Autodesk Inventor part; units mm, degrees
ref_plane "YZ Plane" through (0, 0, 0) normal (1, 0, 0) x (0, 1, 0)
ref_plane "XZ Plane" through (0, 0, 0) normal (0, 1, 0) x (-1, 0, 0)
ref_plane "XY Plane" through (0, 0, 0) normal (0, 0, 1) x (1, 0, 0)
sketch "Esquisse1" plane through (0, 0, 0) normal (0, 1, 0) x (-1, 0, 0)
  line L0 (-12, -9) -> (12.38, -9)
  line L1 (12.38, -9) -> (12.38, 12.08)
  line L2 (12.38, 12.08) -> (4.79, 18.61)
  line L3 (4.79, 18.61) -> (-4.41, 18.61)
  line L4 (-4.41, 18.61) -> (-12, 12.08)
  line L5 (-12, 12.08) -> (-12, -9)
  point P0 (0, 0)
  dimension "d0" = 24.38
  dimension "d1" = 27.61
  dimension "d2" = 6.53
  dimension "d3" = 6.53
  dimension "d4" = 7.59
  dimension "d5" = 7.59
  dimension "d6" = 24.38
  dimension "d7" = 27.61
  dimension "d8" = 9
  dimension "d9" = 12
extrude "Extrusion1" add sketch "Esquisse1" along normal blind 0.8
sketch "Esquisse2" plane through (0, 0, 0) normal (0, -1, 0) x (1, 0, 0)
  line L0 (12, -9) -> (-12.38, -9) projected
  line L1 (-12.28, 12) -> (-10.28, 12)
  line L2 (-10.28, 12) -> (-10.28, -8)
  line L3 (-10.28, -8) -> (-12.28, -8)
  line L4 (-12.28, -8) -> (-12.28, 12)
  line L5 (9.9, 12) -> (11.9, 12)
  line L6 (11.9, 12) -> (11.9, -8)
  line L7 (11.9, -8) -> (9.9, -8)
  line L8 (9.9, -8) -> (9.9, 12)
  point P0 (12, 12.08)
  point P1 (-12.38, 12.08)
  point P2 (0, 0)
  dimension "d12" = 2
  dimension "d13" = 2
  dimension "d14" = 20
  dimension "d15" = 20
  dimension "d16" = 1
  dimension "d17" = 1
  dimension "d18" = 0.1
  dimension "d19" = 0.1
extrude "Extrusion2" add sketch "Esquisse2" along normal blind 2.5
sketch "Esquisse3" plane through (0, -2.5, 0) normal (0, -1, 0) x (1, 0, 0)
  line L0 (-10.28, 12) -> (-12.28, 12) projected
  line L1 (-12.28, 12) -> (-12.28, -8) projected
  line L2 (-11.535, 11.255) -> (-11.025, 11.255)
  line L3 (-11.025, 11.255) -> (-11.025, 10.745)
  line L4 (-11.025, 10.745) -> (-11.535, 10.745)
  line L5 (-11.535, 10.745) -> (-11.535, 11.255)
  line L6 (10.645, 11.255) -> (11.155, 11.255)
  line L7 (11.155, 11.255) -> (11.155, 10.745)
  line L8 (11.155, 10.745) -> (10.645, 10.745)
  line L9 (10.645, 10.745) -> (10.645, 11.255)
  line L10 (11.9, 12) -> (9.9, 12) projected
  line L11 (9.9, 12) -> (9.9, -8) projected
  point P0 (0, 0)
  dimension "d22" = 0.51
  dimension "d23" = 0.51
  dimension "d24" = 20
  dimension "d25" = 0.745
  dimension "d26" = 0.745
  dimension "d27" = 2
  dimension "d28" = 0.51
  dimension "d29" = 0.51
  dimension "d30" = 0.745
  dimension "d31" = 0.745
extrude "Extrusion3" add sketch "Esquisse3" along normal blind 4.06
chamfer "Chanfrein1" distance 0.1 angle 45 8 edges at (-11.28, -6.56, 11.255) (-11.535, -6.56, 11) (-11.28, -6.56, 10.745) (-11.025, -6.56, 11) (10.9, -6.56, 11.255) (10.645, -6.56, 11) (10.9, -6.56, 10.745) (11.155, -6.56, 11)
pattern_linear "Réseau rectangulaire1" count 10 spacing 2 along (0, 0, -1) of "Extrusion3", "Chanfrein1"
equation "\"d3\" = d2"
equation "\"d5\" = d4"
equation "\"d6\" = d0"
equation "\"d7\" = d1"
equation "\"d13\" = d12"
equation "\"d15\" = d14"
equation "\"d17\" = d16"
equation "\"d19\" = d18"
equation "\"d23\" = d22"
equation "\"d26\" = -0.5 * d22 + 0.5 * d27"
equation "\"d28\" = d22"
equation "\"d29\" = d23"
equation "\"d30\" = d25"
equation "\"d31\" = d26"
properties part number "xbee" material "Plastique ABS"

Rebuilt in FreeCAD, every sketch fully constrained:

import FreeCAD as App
import Part
import Sketcher


def edges_at(feature, points):
    """Names of the edges that pass closest to the given points."""
    edges = feature.Shape.Edges
    near = lambda p: min(range(len(edges)), key=lambda i: edges[i].distToShape(Part.Vertex(*p))[0])
    return sorted({f"Edge{near(p) + 1}" for p in points})

doc = App.newDocument("Part")
body = doc.addObject("PartDesign::Body", "Body")

# Sketch on XZ plane
sketch1 = body.newObject("Sketcher::SketchObject", "Sketch")
sketch1.AttachmentSupport = (doc.getObject("XZ_Plane"), [""])
sketch1.MapMode = "FlatFace"
sketch1.addGeometry(Part.LineSegment(App.Vector(12, 12, 0), App.Vector(12, -9, 0)), False)
sketch1.addGeometry(Part.LineSegment(App.Vector(12, -9, 0), App.Vector(-12, -9, 0)), False)
sketch1.addGeometry(Part.LineSegment(App.Vector(-12, -9, 0), App.Vector(-12, 12, 0)), False)
sketch1.addGeometry(Part.LineSegment(App.Vector(-12, 12, 0), App.Vector(-5, 19, 0)), False)
sketch1.addGeometry(Part.LineSegment(App.Vector(-5, 19, 0), App.Vector(4, 19, 0)), False)
sketch1.addGeometry(Part.LineSegment(App.Vector(4, 19, 0), App.Vector(12, 12, 0)), False)
sketch1.addConstraint(Sketcher.Constraint("Coincident", 0, 2, 1, 1))
sketch1.addConstraint(Sketcher.Constraint("Coincident", 1, 2, 2, 1))
sketch1.addConstraint(Sketcher.Constraint("Coincident", 2, 2, 3, 1))
sketch1.addConstraint(Sketcher.Constraint("Coincident", 3, 2, 4, 1))
sketch1.addConstraint(Sketcher.Constraint("Coincident", 4, 2, 5, 1))
sketch1.addConstraint(Sketcher.Constraint("Coincident", 5, 2, 0, 1))
sketch1.addConstraint(Sketcher.Constraint("Vertical", 0))
sketch1.addConstraint(Sketcher.Constraint("Horizontal", 1))
sketch1.addConstraint(Sketcher.Constraint("Vertical", 2))
sketch1.addConstraint(Sketcher.Constraint("Horizontal", 4))
sketch1.addConstraint(Sketcher.Constraint("Horizontal", 2, 2, 5, 2))
sketch1.addConstraint(Sketcher.Constraint("Equal", 3, 5))
sketch1.addConstraint(Sketcher.Constraint("DistanceX", -1, 1, 0, 2, 12.0))
sketch1.addConstraint(Sketcher.Constraint("DistanceY", 0, 2, -1, 1, 9.0))
sketch1.addConstraint(Sketcher.Constraint("DistanceX", 1, 2, 1, 1, 24.38))
sketch1.addConstraint(Sketcher.Constraint("DistanceX", 2, 2, 3, 2, 7.59))
sketch1.addConstraint(Sketcher.Constraint("DistanceY", 2, 2, 3, 2, 6.53))
sketch1.addConstraint(Sketcher.Constraint("DistanceY", 1, 2, 3, 2, 27.61))
pad1 = body.newObject("PartDesign::Pad", "Pad")
pad1.Profile = sketch1
pad1.Length = 0.8
pad1.Reversed = True

# Sketch on XZ plane
sketch2 = body.newObject("Sketcher::SketchObject", "Sketch001")
sketch2.AttachmentSupport = (doc.getObject("XZ_Plane"), [""])
sketch2.MapMode = "FlatFace"
sketch2.addGeometry(Part.LineSegment(App.Vector(-10.3, 12, 0), App.Vector(-12.3, 12, 0)), False)
sketch2.addGeometry(Part.LineSegment(App.Vector(-12.3, 12, 0), App.Vector(-12.3, -8, 0)), False)
sketch2.addGeometry(Part.LineSegment(App.Vector(-12.3, -8, 0), App.Vector(-10.3, -8, 0)), False)
sketch2.addGeometry(Part.LineSegment(App.Vector(-10.3, -8, 0), App.Vector(-10.3, 12, 0)), False)
sketch2.addGeometry(Part.LineSegment(App.Vector(11.9, 12, 0), App.Vector(9.9, 12, 0)), False)
sketch2.addGeometry(Part.LineSegment(App.Vector(9.9, 12, 0), App.Vector(9.9, -8, 0)), False)
sketch2.addGeometry(Part.LineSegment(App.Vector(9.9, -8, 0), App.Vector(11.9, -8, 0)), False)
sketch2.addGeometry(Part.LineSegment(App.Vector(11.9, -8, 0), App.Vector(11.9, 12, 0)), False)
sketch2.addConstraint(Sketcher.Constraint("Coincident", 0, 2, 1, 1))
sketch2.addConstraint(Sketcher.Constraint("Coincident", 1, 2, 2, 1))
sketch2.addConstraint(Sketcher.Constraint("Coincident", 2, 2, 3, 1))
sketch2.addConstraint(Sketcher.Constraint("Coincident", 3, 2, 0, 1))
sketch2.addConstraint(Sketcher.Constraint("Coincident", 4, 2, 5, 1))
sketch2.addConstraint(Sketcher.Constraint("Coincident", 5, 2, 6, 1))
sketch2.addConstraint(Sketcher.Constraint("Coincident", 6, 2, 7, 1))
sketch2.addConstraint(Sketcher.Constraint("Coincident", 7, 2, 4, 1))
sketch2.addConstraint(Sketcher.Constraint("Horizontal", 0))
sketch2.addConstraint(Sketcher.Constraint("Vertical", 1))
sketch2.addConstraint(Sketcher.Constraint("Horizontal", 2))
sketch2.addConstraint(Sketcher.Constraint("Vertical", 3))
sketch2.addConstraint(Sketcher.Constraint("Horizontal", 4))
sketch2.addConstraint(Sketcher.Constraint("Vertical", 5))
sketch2.addConstraint(Sketcher.Constraint("Horizontal", 6))
sketch2.addConstraint(Sketcher.Constraint("Vertical", 7))
sketch2.addConstraint(Sketcher.Constraint("Horizontal", 3, 2, 4, 2))
sketch2.addConstraint(Sketcher.Constraint("Horizontal", 2, 2, 5, 2))
sketch2.addConstraint(Sketcher.Constraint("Equal", 2, 4))
sketch2.addConstraint(Sketcher.Constraint("DistanceX", 0, 2, 0, 1, 2.0))
sketch2.addConstraint(Sketcher.Constraint("DistanceY", 1, 2, 1, 1, 20.0))
sketch2.addConstraint(Sketcher.Constraint("DistanceY", -1, 1, 0, 2, 12.0))
sketch2.addConstraint(Sketcher.Constraint("DistanceX", -1, 1, 4, 2, 9.9))
sketch2.addConstraint(Sketcher.Constraint("DistanceX", 0, 2, -1, 1, 12.28))
pad2 = body.newObject("PartDesign::Pad", "Pad001")
pad2.Profile = sketch2
pad2.Length = 2.5

# Sketch on XZ plane
sketch3 = body.newObject("Sketcher::SketchObject", "Sketch002")
sketch3.AttachmentSupport = (doc.getObject("XZ_Plane"), [""])
sketch3.MapMode = "FlatFace"
sketch3.AttachmentOffset = App.Placement(App.Vector(0, 0, 2.5), App.Rotation())
sketch3.addGeometry(Part.LineSegment(App.Vector(-11, 11.3, 0), App.Vector(-11.5, 11.3, 0)), False)
sketch3.addGeometry(Part.LineSegment(App.Vector(-11.5, 11.3, 0), App.Vector(-11.5, 10.7, 0)), False)
sketch3.addGeometry(Part.LineSegment(App.Vector(-11.5, 10.7, 0), App.Vector(-11, 10.7, 0)), False)
sketch3.addGeometry(Part.LineSegment(App.Vector(-11, 10.7, 0), App.Vector(-11, 11.3, 0)), False)
sketch3.addGeometry(Part.LineSegment(App.Vector(11.2, 11.3, 0), App.Vector(10.6, 11.3, 0)), False)
sketch3.addGeometry(Part.LineSegment(App.Vector(10.6, 11.3, 0), App.Vector(10.6, 10.7, 0)), False)
sketch3.addGeometry(Part.LineSegment(App.Vector(10.6, 10.7, 0), App.Vector(11.2, 10.7, 0)), False)
sketch3.addGeometry(Part.LineSegment(App.Vector(11.2, 10.7, 0), App.Vector(11.2, 11.3, 0)), False)
sketch3.addConstraint(Sketcher.Constraint("Coincident", 0, 2, 1, 1))
sketch3.addConstraint(Sketcher.Constraint("Coincident", 1, 2, 2, 1))
sketch3.addConstraint(Sketcher.Constraint("Coincident", 2, 2, 3, 1))
sketch3.addConstraint(Sketcher.Constraint("Coincident", 3, 2, 0, 1))
sketch3.addConstraint(Sketcher.Constraint("Coincident", 4, 2, 5, 1))
sketch3.addConstraint(Sketcher.Constraint("Coincident", 5, 2, 6, 1))
sketch3.addConstraint(Sketcher.Constraint("Coincident", 6, 2, 7, 1))
sketch3.addConstraint(Sketcher.Constraint("Coincident", 7, 2, 4, 1))
sketch3.addConstraint(Sketcher.Constraint("Horizontal", 0))
sketch3.addConstraint(Sketcher.Constraint("Vertical", 1))
sketch3.addConstraint(Sketcher.Constraint("Horizontal", 2))
sketch3.addConstraint(Sketcher.Constraint("Vertical", 3))
sketch3.addConstraint(Sketcher.Constraint("Horizontal", 4))
sketch3.addConstraint(Sketcher.Constraint("Vertical", 5))
sketch3.addConstraint(Sketcher.Constraint("Horizontal", 6))
sketch3.addConstraint(Sketcher.Constraint("Vertical", 7))
sketch3.addConstraint(Sketcher.Constraint("Horizontal", 3, 2, 4, 2))
sketch3.addConstraint(Sketcher.Constraint("Horizontal", 2, 2, 5, 2))
sketch3.addConstraint(Sketcher.Constraint("Equal", 2, 4))
sketch3.addConstraint(Sketcher.Constraint("Equal", 6, 1))
sketch3.addConstraint(Sketcher.Constraint("DistanceX", 0, 2, 0, 1, 0.51))
sketch3.addConstraint(Sketcher.Constraint("DistanceX", 3, 2, 4, 2, 21.67))
sketch3.addConstraint(Sketcher.Constraint("DistanceX", 0, 2, -1, 1, 11.535))
sketch3.addConstraint(Sketcher.Constraint("DistanceY", -1, 1, 0, 2, 11.255))
pad3 = body.newObject("PartDesign::Pad", "Pad002")
pad3.Profile = sketch3
pad3.Length = 4.06
doc.recompute()

chamfer = body.newObject("PartDesign::Chamfer", "Chamfer")
chamfer.Base = (pad3, edges_at(pad3, [
    (-11.28, -6.56, 11.255),
    (-11.535, -6.56, 11),
    (-11.28, -6.56, 10.745),
    (-11.025, -6.56, 11),
    (10.9, -6.56, 11.255),
    (10.645, -6.56, 11),
    (10.9, -6.56, 10.745),
    (11.155, -6.56, 11),
]))
chamfer.Size = 0.1
doc.recompute()

linearpattern = body.newObject("PartDesign::LinearPattern", "LinearPattern")
linearpattern.Originals = [pad3, chamfer]
linearpattern.Direction = (doc.getObject("Z_Axis"), [""])
linearpattern.Mode = "offset"
linearpattern.Offset = 2
linearpattern.Occurrences = 10
linearpattern.Reversed = True
body.Tip = linearpattern

doc.recompute()
